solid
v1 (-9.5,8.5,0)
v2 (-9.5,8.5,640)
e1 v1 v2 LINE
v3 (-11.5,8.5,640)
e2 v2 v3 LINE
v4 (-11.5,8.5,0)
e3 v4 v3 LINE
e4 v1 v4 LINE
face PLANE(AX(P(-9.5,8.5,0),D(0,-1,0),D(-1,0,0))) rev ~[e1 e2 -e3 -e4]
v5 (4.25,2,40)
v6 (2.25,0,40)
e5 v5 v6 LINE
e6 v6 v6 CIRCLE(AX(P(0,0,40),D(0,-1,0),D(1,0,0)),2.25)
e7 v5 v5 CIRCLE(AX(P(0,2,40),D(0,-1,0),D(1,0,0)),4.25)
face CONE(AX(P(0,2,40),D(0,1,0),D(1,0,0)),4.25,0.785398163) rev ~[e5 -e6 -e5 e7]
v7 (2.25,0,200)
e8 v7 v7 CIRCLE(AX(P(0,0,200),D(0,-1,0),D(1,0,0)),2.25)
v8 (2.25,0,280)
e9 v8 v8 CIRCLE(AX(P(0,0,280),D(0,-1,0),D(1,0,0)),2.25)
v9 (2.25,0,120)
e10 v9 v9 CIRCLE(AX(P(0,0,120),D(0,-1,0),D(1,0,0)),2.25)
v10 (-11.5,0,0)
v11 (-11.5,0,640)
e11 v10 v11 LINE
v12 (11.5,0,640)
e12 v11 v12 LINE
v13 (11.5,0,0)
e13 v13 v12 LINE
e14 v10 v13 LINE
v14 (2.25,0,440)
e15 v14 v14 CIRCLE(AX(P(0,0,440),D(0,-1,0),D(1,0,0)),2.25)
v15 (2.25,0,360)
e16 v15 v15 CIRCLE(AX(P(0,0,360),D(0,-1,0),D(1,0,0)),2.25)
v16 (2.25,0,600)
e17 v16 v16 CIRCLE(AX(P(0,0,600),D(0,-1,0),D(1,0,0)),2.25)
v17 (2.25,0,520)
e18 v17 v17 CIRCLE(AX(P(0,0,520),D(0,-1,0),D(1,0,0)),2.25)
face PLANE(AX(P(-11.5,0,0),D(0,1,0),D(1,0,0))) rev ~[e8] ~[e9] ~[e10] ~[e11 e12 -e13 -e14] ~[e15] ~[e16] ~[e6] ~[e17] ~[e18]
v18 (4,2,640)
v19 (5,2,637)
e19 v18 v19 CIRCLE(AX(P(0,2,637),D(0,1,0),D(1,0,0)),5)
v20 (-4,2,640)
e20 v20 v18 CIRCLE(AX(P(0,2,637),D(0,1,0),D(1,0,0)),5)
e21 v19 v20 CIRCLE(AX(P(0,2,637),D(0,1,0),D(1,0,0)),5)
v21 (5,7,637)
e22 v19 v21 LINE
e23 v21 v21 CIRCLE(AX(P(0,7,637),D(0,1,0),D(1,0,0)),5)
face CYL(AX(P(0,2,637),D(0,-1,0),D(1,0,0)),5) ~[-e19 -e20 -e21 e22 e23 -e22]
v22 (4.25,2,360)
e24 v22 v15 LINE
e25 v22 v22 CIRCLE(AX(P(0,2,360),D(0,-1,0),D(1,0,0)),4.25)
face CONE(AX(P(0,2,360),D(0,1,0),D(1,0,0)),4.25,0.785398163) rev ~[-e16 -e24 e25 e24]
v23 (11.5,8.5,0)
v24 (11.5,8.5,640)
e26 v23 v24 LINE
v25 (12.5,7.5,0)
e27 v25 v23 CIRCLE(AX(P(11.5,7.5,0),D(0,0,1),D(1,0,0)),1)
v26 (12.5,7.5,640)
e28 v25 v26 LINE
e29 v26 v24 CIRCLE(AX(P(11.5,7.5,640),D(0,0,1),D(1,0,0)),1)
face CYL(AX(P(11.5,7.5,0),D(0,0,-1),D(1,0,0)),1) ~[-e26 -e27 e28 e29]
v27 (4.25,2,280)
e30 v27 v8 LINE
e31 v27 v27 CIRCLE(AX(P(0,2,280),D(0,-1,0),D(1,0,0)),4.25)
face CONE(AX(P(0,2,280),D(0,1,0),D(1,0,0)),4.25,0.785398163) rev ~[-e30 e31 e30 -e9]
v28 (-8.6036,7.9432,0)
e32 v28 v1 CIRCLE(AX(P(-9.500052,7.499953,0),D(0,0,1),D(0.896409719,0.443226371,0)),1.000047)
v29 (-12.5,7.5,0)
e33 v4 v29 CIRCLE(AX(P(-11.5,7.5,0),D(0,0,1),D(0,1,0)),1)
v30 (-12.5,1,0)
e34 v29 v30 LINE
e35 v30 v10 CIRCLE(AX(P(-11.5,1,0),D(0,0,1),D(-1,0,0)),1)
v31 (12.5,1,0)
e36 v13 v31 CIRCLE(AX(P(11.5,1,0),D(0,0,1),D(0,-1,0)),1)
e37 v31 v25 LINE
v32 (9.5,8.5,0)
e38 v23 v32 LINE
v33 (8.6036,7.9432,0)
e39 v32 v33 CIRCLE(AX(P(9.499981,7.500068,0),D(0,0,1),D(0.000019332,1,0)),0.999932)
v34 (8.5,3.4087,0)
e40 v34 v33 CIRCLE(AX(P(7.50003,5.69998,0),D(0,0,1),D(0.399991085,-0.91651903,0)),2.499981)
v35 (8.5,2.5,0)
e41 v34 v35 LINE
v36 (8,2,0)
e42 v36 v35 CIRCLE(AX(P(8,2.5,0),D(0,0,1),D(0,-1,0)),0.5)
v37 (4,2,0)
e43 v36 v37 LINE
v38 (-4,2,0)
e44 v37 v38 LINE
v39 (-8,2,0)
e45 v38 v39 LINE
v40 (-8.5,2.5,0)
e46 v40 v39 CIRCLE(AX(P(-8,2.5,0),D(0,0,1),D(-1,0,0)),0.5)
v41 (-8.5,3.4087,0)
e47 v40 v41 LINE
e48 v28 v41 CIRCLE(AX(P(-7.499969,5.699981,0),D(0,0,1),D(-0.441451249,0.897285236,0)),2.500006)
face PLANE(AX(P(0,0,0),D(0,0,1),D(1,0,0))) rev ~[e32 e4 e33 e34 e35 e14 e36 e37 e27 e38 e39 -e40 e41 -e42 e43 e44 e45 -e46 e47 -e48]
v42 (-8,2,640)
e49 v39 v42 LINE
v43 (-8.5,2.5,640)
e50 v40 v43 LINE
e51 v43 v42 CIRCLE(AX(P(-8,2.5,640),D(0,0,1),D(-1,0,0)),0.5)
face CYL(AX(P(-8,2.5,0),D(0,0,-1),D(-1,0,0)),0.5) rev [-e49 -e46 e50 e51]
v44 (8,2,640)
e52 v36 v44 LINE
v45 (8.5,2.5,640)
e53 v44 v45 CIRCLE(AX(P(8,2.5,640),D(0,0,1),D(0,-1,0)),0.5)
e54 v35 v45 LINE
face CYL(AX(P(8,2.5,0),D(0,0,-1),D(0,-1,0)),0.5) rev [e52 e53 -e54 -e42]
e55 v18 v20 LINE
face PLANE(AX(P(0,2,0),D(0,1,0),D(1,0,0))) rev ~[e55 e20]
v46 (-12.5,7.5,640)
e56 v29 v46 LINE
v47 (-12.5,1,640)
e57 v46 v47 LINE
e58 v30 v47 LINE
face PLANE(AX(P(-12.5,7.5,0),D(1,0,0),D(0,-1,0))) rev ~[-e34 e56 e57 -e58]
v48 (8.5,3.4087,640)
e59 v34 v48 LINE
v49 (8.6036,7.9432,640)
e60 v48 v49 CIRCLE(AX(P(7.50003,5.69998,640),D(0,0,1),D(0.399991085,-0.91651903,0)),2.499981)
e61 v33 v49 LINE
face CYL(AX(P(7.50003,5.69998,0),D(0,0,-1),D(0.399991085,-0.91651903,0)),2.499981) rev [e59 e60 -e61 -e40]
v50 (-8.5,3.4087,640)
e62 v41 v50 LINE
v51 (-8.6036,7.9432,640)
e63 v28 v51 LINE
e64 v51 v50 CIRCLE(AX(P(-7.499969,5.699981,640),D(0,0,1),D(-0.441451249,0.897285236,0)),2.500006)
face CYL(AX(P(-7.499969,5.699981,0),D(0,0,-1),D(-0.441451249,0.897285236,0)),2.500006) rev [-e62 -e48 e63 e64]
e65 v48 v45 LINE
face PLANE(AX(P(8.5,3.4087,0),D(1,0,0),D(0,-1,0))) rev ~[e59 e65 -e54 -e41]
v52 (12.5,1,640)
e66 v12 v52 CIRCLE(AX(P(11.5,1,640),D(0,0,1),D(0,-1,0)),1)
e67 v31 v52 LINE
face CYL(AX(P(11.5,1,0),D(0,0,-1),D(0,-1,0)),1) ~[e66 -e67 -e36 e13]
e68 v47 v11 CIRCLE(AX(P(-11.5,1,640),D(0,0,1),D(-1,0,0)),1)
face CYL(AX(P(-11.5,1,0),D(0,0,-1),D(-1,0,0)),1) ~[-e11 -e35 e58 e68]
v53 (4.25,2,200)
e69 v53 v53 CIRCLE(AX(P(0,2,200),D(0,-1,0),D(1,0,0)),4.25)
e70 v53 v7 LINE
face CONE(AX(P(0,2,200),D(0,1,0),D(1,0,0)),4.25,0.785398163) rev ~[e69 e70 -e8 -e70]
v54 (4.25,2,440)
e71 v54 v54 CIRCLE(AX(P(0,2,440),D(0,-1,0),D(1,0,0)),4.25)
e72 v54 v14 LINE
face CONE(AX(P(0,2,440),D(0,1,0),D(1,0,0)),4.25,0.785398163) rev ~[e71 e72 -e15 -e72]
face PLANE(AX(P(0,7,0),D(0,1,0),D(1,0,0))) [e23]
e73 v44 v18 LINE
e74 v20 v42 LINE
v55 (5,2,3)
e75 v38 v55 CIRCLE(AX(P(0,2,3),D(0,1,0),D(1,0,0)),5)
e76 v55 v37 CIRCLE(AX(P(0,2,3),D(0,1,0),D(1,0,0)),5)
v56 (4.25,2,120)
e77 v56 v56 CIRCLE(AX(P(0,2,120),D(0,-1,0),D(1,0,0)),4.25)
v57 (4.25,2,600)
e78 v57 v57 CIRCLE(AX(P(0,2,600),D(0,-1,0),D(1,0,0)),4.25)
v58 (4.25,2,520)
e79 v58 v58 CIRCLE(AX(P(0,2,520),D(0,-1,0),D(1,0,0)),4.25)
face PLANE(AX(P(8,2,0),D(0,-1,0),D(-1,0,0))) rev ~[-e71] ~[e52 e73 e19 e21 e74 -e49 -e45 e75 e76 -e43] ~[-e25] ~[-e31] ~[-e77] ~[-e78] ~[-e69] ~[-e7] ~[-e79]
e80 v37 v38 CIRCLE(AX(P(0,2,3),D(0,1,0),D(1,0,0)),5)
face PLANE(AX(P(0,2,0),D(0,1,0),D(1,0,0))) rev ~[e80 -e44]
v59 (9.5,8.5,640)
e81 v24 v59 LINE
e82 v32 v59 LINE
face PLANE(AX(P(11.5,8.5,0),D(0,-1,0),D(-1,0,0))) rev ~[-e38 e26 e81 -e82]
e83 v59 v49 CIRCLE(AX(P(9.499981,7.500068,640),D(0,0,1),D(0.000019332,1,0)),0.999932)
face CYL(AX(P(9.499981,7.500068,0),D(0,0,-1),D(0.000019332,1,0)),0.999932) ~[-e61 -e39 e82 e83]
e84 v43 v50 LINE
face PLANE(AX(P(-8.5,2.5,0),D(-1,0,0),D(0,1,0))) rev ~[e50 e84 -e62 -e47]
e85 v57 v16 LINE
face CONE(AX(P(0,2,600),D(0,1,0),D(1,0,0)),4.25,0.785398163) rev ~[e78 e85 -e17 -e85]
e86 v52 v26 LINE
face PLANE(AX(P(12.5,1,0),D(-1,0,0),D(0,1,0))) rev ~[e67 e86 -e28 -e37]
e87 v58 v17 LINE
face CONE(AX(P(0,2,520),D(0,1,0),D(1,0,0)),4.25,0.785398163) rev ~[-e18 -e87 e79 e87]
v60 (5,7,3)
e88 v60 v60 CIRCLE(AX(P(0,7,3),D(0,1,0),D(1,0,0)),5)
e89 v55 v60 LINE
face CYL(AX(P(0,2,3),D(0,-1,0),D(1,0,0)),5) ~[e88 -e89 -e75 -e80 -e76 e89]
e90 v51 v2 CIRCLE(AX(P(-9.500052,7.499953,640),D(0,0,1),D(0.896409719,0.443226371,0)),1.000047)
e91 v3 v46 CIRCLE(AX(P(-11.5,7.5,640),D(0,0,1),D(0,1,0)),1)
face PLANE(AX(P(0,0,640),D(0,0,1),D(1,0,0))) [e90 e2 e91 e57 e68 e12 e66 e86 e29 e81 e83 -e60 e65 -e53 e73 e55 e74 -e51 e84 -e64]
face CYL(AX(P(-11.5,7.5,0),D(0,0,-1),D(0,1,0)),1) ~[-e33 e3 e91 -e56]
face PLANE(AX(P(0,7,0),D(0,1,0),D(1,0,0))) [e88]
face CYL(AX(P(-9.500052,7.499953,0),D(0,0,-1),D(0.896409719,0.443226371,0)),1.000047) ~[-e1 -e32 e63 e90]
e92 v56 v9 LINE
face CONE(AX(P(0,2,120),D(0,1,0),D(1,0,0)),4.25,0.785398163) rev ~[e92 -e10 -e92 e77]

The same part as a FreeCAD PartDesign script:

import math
import FreeCAD as App
import Part
import Sketcher

V = App.Vector
Q = App.Units.Quantity

doc = App.newDocument("Part")
body = doc.addObject("PartDesign::Body", "Body")

sketch1 = doc.addObject("Sketcher::SketchObject", "Sketch")
body.addObject(sketch1)
sketch1.AttachmentSupport = (doc.XY_Plane, [""])
sketch1.MapMode = "FlatFace"
sketch1.addGeometry(Part.LineSegment(V(-12.5, 7.5, 0), V(-12.5, 1, 0)), False)
sketch1.addGeometry(Part.ArcOfCircle(Part.Circle(V(-11.5, 1, 0), V(0, 0, 1), 1), math.radians(180), math.radians(270)), False)
sketch1.addGeometry(Part.LineSegment(V(-11.5, 0, 0), V(11.5, 0, 0)), False)
sketch1.addGeometry(Part.ArcOfCircle(Part.Circle(V(11.5, 1, 0), V(0, 0, 1), 1), math.radians(-90), math.radians(0)), False)
sketch1.addGeometry(Part.LineSegment(V(12.5, 1, 0), V(12.5, 7.5, 0)), False)
sketch1.addGeometry(Part.ArcOfCircle(Part.Circle(V(11.5, 7.5, 0), V(0, 0, 1), 1), math.radians(0), math.radians(90)), False)
sketch1.addGeometry(Part.LineSegment(V(11.5, 8.5, 0), V(9.5, 8.5, 0)), False)
sketch1.addGeometry(Part.ArcOfCircle(Part.Circle(V(9.5, 7.5, 0), V(0, 0, 1), 1), math.radians(90), math.radians(154)), False)
sketch1.addGeometry(Part.ArcOfCircle(Part.Circle(V(7.5, 5.7, 0), V(0, 0, 1), 2.5), math.radians(-66), math.radians(64)), False)
sketch1.addGeometry(Part.LineSegment(V(8.5, 3.4, 0), V(8.5, 2.5, 0)), False)
sketch1.addGeometry(Part.ArcOfCircle(Part.Circle(V(8, 2.5, 0), V(0, 0, 1), 0.5), math.radians(-90), math.radians(0)), False)
sketch1.addGeometry(Part.LineSegment(V(8, 2, 0), V(-8, 2, 0)), False)
sketch1.addGeometry(Part.ArcOfCircle(Part.Circle(V(-8, 2.5, 0), V(0, 0, 1), 0.5), math.radians(180), math.radians(270)), False)
sketch1.addGeometry(Part.LineSegment(V(-8.5, 2.5, 0), V(-8.5, 3.4, 0)), False)
sketch1.addGeometry(Part.ArcOfCircle(Part.Circle(V(-7.5, 5.7, 0), V(0, 0, 1), 2.5), math.radians(116), math.radians(246)), False)
sketch1.addGeometry(Part.ArcOfCircle(Part.Circle(V(-9.5, 7.5, 0), V(0, 0, 1), 1), math.radians(26), math.radians(90)), False)
sketch1.addGeometry(Part.LineSegment(V(-9.5, 8.5, 0), V(-11.5, 8.5, 0)), False)
sketch1.addGeometry(Part.ArcOfCircle(Part.Circle(V(-11.5, 7.5, 0), V(0, 0, 1), 1), math.radians(90), math.radians(180)), False)
sketch1.addConstraint(Sketcher.Constraint("Tangent", 0, 2, 1, 1))
sketch1.addConstraint(Sketcher.Constraint("Tangent", 1, 2, 2, 1))
sketch1.addConstraint(Sketcher.Constraint("Tangent", 2, 2, 3, 1))
sketch1.addConstraint(Sketcher.Constraint("Tangent", 3, 2, 4, 1))
sketch1.addConstraint(Sketcher.Constraint("Tangent", 4, 2, 5, 1))
sketch1.addConstraint(Sketcher.Constraint("Tangent", 5, 2, 6, 1))
sketch1.addConstraint(Sketcher.Constraint("Tangent", 6, 2, 7, 1))
sketch1.addConstraint(Sketcher.Constraint("Coincident", 7, 2, 8, 2))
sketch1.addConstraint(Sketcher.Constraint("Coincident", 8, 1, 9, 1))
sketch1.addConstraint(Sketcher.Constraint("Tangent", 9, 2, 10, 2))
sketch1.addConstraint(Sketcher.Constraint("Tangent", 10, 1, 11, 1))
sketch1.addConstraint(Sketcher.Constraint("Tangent", 11, 2, 12, 2))
sketch1.addConstraint(Sketcher.Constraint("Tangent", 12, 1, 13, 1))
sketch1.addConstraint(Sketcher.Constraint("Coincident", 13, 2, 14, 2))
sketch1.addConstraint(Sketcher.Constraint("Coincident", 14, 1, 15, 1))
sketch1.addConstraint(Sketcher.Constraint("Tangent", 15, 2, 16, 1))
sketch1.addConstraint(Sketcher.Constraint("Tangent", 16, 2, 17, 1))
sketch1.addConstraint(Sketcher.Constraint("Tangent", 17, 2, 0, 1))
sketch1.addConstraint(Sketcher.Constraint("Vertical", 0))
sketch1.addConstraint(Sketcher.Constraint("Horizontal", 2))
sketch1.addConstraint(Sketcher.Constraint("Vertical", 4))
sketch1.addConstraint(Sketcher.Constraint("Horizontal", 6))
sketch1.addConstraint(Sketcher.Constraint("Vertical", 9))
sketch1.addConstraint(Sketcher.Constraint("Horizontal", 11))
sketch1.addConstraint(Sketcher.Constraint("Vertical", 13))
sketch1.addConstraint(Sketcher.Constraint("Horizontal", 16))
sketch1.addConstraint(Sketcher.Constraint("Equal", 1, 3))
sketch1.addConstraint(Sketcher.Constraint("Equal", 3, 5))
sketch1.addConstraint(Sketcher.Constraint("Equal", 5, 7))
sketch1.addConstraint(Sketcher.Constraint("Equal", 10, 12))
sketch1.addConstraint(Sketcher.Constraint("Equal", 8, 14))
sketch1.addConstraint(Sketcher.Constraint("Equal", 7, 15))
sketch1.addConstraint(Sketcher.Constraint("Equal", 15, 17))
sketch1.addConstraint(Sketcher.Constraint("Symmetric", 1, 2, 2, 2, -1, 1))
sketch1.addConstraint(Sketcher.Constraint("Symmetric", 8, 3, 14, 3, -2))
sketch1.addConstraint(Sketcher.Constraint("Symmetric", 7, 3, 15, 3, -2))
sketch1.addConstraint(Sketcher.Constraint("Horizontal", 8, 1, 13, 2))
sketch1.addConstraint(Sketcher.Constraint("Radius", 1, 1.0))
sketch1.addConstraint(Sketcher.Constraint("Radius", 8, 2.5))
sketch1.addConstraint(Sketcher.Constraint("Radius", 10, 0.5))
sketch1.addConstraint(Sketcher.Constraint("DistanceX", 2, 1, 2, 2, 23.0))
sketch1.addConstraint(Sketcher.Constraint("DistanceX", 6, 2, 6, 1, 2.0))
sketch1.addConstraint(Sketcher.Constraint("DistanceX", 11, 2, 11, 1, 16.0))
sketch1.addConstraint(Sketcher.Constraint("DistanceY", 0, 2, 0, 1, 6.5))
sketch1.addConstraint(Sketcher.Constraint("DistanceY", -1, 1, 10, 1, 2.0))
sketch1.addConstraint(Sketcher.Constraint("DistanceX", 8, 3, 7, 3, 2.0))
sketch1.addConstraint(Sketcher.Constraint("DistanceY", -1, 1, 8, 3, 5.7))
pad1 = doc.addObject("PartDesign::Pad", "Pad")
body.addObject(pad1)
pad1.Profile = sketch1
pad1.Length = 640

sketch2 = doc.addObject("Sketcher::SketchObject", "Sketch001")
body.addObject(sketch2)
sketch2.AttachmentSupport = (doc.XY_Plane, [""])
sketch2.MapMode = "FlatFace"
sketch2.AttachmentOffset = App.Placement(V(0, 0, 40), App.Rotation())
sketch2.addGeometry(Part.LineSegment(V(0, 2, 0), V(0, 0, 0)), False)
sketch2.addGeometry(Part.LineSegment(V(0, 0, 0), V(2.2, 0, 0)), False)
sketch2.addGeometry(Part.LineSegment(V(2.2, 0, 0), V(4.2, 2, 0)), False)
sketch2.addGeometry(Part.LineSegment(V(4.2, 2, 0), V(0, 2, 0)), False)
sketch2.addConstraint(Sketcher.Constraint("Coincident", 0, 2, 1, 1))
sketch2.addConstraint(Sketcher.Constraint("Coincident", 1, 2, 2, 1))
sketch2.addConstraint(Sketcher.Constraint("Coincident", 2, 2, 3, 1))
sketch2.addConstraint(Sketcher.Constraint("Coincident", 3, 2, 0, 1))
sketch2.addConstraint(Sketcher.Constraint("Vertical", 0))
sketch2.addConstraint(Sketcher.Constraint("Horizontal", 1))
sketch2.addConstraint(Sketcher.Constraint("Horizontal", 3))
sketch2.addConstraint(Sketcher.Constraint("Coincident", 0, 2, -1, 1))
sketch2.addConstraint(Sketcher.Constraint("DistanceY", 0, 2, 0, 1, 2.0))
sketch2.addConstraint(Sketcher.Constraint("Angle", 2, Q("45 deg")))
sketch2.addConstraint(Sketcher.Constraint("DistanceX", 1, 1, 1, 2, 2.25))
groove = doc.addObject("PartDesign::Groove", "Groove")
body.addObject(groove)
groove.Profile = sketch2
groove.ReferenceAxis = (sketch2, ["V_Axis"])
groove.Angle = 360
doc.recompute()

linearpattern = doc.addObject("PartDesign::LinearPattern", "LinearPattern")
body.addObject(linearpattern)
linearpattern.Originals = [groove]
linearpattern.Direction = (doc.Z_Axis, [""])
linearpattern.Mode = "offset"
linearpattern.Offset = 80
linearpattern.Occurrences = 8
body.Tip = linearpattern

sketch3 = doc.addObject("Sketcher::SketchObject", "Sketch002")
body.addObject(sketch3)
sketch3.AttachmentSupport = (doc.XZ_Plane, [""])
sketch3.MapMode = "FlatFace"
sketch3.AttachmentOffset = App.Placement(V(0, 0, -2), App.Rotation())
sketch3.addGeometry(Part.Circle(V(0, 3, 0), V(0, 0, 1), 5), False)
sketch3.addConstraint(Sketcher.Constraint("PointOnObject", 0, 3, -2))
sketch3.addConstraint(Sketcher.Constraint("Diameter", 0, 10.0))
sketch3.addConstraint(Sketcher.Constraint("DistanceY", -1, 1, 0, 3, 3.0))
pad2 = doc.addObject("PartDesign::Pad", "Pad001")
body.addObject(pad2)
pad2.Profile = sketch3
pad2.Length = 5
pad2.Reversed = True

sketch4 = doc.addObject("Sketcher::SketchObject", "Sketch003")
body.addObject(sketch4)
sketch4.AttachmentSupport = (doc.XZ_Plane, [""])
sketch4.MapMode = "FlatFace"
sketch4.AttachmentOffset = App.Placement(V(0, 0, -2), App.Rotation())
sketch4.addGeometry(Part.Circle(V(0, 637, 0), V(0, 0, 1), 5), False)
sketch4.addConstraint(Sketcher.Constraint("PointOnObject", 0, 3, -2))
sketch4.addConstraint(Sketcher.Constraint("Diameter", 0, 10.0))
sketch4.addConstraint(Sketcher.Constraint("DistanceY", -1, 1, 0, 3, 637.0))
pad3 = doc.addObject("PartDesign::Pad", "Pad002")
body.addObject(pad3)
pad3.Profile = sketch4
pad3.Length = 5
pad3.Reversed = True

doc.recompute()
